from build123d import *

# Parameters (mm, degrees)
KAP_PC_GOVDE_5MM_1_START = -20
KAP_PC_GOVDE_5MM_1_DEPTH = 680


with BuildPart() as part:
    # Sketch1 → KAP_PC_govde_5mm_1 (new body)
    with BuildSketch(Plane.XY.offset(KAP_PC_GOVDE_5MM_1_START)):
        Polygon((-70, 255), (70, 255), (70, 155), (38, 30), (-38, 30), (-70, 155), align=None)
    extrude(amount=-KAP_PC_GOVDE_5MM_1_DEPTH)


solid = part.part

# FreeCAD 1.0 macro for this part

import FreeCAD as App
import Part
import Sketcher

doc = App.newDocument("Part")
params = doc.addObject("Spreadsheet::Sheet", "Params")
for row, (alias, value) in enumerate([
    ("sketch1_width", "140 mm"),
    ("sketch1_width2", "76 mm"),
    ("sketch1_height", "100 mm"),
    ("pad1_length", "680 mm"),
], start=1):
    params.set(f"A{row}", alias)
    params.set(f"B{row}", "=" + value)
    params.setAlias(f"B{row}", alias)

body = doc.addObject("PartDesign::Body", "Body")

# Sketch on XY plane
sketch1 = body.newObject("Sketcher::SketchObject", "Sketch")
sketch1.AttachmentSupport = (doc.getObject("XY_Plane"), [""])
sketch1.MapMode = "FlatFace"
sketch1.AttachmentOffset = App.Placement(App.Vector(0, 0, -20), App.Rotation())
sketch1.addGeometry(Part.LineSegment(App.Vector(70, 255, 0), App.Vector(-70, 255, 0)), False)
sketch1.addGeometry(Part.LineSegment(App.Vector(-70, 255, 0), App.Vector(-70, 155, 0)), False)
sketch1.addGeometry(Part.LineSegment(App.Vector(-70, 155, 0), App.Vector(-38, 30, 0)), False)
sketch1.addGeometry(Part.LineSegment(App.Vector(-38, 30, 0), App.Vector(38, 30, 0)), False)
sketch1.addGeometry(Part.LineSegment(App.Vector(38, 30, 0), App.Vector(70, 155, 0)), False)
sketch1.addGeometry(Part.LineSegment(App.Vector(70, 155, 0), App.Vector(70, 255, 0)), False)
sketch1.addConstraint(Sketcher.Constraint("Coincident", 0, 2, 1, 1))
sketch1.addConstraint(Sketcher.Constraint("Coincident", 1, 2, 2, 1))
sketch1.addConstraint(Sketcher.Constraint("Coincident", 2, 2, 3, 1))
sketch1.addConstraint(Sketcher.Constraint("Coincident", 3, 2, 4, 1))
sketch1.addConstraint(Sketcher.Constraint("Coincident", 4, 2, 5, 1))
sketch1.addConstraint(Sketcher.Constraint("Coincident", 5, 2, 0, 1))
sketch1.addConstraint(Sketcher.Constraint("Horizontal", 0))
sketch1.addConstraint(Sketcher.Constraint("Vertical", 1))
sketch1.addConstraint(Sketcher.Constraint("Horizontal", 3))
sketch1.addConstraint(Sketcher.Constraint("Vertical", 5))
sketch1.addConstraint(Sketcher.Constraint("Symmetric", 1, 2, 4, 2, -2))
sketch1.addConstraint(Sketcher.Constraint("Equal", 2, 4))
sketch1.addConstraint(Sketcher.Constraint("DistanceX", 0, 2, 0, 1, 140.0))
sketch1.addConstraint(Sketcher.Constraint("DistanceX", 3, 1, 3, 2, 76.0))
sketch1.addConstraint(Sketcher.Constraint("DistanceY", 1, 2, 1, 1, 100.0))
sketch1.addConstraint(Sketcher.Constraint("DistanceY", -1, 1, 0, 2, 255.0))
sketch1.addConstraint(Sketcher.Constraint("DistanceY", -1, 1, 2, 2, 30.0))
sketch1.setExpression("Constraints[12]", "Params.sketch1_width")
sketch1.setExpression("Constraints[13]", "Params.sketch1_width2")
sketch1.setExpression("Constraints[14]", "Params.sketch1_height")
pad1 = body.newObject("PartDesign::Pad", "Pad")
pad1.Profile = sketch1
pad1.setExpression("Length", "Params.pad1_length")
pad1.Reversed = True

doc.recompute()
